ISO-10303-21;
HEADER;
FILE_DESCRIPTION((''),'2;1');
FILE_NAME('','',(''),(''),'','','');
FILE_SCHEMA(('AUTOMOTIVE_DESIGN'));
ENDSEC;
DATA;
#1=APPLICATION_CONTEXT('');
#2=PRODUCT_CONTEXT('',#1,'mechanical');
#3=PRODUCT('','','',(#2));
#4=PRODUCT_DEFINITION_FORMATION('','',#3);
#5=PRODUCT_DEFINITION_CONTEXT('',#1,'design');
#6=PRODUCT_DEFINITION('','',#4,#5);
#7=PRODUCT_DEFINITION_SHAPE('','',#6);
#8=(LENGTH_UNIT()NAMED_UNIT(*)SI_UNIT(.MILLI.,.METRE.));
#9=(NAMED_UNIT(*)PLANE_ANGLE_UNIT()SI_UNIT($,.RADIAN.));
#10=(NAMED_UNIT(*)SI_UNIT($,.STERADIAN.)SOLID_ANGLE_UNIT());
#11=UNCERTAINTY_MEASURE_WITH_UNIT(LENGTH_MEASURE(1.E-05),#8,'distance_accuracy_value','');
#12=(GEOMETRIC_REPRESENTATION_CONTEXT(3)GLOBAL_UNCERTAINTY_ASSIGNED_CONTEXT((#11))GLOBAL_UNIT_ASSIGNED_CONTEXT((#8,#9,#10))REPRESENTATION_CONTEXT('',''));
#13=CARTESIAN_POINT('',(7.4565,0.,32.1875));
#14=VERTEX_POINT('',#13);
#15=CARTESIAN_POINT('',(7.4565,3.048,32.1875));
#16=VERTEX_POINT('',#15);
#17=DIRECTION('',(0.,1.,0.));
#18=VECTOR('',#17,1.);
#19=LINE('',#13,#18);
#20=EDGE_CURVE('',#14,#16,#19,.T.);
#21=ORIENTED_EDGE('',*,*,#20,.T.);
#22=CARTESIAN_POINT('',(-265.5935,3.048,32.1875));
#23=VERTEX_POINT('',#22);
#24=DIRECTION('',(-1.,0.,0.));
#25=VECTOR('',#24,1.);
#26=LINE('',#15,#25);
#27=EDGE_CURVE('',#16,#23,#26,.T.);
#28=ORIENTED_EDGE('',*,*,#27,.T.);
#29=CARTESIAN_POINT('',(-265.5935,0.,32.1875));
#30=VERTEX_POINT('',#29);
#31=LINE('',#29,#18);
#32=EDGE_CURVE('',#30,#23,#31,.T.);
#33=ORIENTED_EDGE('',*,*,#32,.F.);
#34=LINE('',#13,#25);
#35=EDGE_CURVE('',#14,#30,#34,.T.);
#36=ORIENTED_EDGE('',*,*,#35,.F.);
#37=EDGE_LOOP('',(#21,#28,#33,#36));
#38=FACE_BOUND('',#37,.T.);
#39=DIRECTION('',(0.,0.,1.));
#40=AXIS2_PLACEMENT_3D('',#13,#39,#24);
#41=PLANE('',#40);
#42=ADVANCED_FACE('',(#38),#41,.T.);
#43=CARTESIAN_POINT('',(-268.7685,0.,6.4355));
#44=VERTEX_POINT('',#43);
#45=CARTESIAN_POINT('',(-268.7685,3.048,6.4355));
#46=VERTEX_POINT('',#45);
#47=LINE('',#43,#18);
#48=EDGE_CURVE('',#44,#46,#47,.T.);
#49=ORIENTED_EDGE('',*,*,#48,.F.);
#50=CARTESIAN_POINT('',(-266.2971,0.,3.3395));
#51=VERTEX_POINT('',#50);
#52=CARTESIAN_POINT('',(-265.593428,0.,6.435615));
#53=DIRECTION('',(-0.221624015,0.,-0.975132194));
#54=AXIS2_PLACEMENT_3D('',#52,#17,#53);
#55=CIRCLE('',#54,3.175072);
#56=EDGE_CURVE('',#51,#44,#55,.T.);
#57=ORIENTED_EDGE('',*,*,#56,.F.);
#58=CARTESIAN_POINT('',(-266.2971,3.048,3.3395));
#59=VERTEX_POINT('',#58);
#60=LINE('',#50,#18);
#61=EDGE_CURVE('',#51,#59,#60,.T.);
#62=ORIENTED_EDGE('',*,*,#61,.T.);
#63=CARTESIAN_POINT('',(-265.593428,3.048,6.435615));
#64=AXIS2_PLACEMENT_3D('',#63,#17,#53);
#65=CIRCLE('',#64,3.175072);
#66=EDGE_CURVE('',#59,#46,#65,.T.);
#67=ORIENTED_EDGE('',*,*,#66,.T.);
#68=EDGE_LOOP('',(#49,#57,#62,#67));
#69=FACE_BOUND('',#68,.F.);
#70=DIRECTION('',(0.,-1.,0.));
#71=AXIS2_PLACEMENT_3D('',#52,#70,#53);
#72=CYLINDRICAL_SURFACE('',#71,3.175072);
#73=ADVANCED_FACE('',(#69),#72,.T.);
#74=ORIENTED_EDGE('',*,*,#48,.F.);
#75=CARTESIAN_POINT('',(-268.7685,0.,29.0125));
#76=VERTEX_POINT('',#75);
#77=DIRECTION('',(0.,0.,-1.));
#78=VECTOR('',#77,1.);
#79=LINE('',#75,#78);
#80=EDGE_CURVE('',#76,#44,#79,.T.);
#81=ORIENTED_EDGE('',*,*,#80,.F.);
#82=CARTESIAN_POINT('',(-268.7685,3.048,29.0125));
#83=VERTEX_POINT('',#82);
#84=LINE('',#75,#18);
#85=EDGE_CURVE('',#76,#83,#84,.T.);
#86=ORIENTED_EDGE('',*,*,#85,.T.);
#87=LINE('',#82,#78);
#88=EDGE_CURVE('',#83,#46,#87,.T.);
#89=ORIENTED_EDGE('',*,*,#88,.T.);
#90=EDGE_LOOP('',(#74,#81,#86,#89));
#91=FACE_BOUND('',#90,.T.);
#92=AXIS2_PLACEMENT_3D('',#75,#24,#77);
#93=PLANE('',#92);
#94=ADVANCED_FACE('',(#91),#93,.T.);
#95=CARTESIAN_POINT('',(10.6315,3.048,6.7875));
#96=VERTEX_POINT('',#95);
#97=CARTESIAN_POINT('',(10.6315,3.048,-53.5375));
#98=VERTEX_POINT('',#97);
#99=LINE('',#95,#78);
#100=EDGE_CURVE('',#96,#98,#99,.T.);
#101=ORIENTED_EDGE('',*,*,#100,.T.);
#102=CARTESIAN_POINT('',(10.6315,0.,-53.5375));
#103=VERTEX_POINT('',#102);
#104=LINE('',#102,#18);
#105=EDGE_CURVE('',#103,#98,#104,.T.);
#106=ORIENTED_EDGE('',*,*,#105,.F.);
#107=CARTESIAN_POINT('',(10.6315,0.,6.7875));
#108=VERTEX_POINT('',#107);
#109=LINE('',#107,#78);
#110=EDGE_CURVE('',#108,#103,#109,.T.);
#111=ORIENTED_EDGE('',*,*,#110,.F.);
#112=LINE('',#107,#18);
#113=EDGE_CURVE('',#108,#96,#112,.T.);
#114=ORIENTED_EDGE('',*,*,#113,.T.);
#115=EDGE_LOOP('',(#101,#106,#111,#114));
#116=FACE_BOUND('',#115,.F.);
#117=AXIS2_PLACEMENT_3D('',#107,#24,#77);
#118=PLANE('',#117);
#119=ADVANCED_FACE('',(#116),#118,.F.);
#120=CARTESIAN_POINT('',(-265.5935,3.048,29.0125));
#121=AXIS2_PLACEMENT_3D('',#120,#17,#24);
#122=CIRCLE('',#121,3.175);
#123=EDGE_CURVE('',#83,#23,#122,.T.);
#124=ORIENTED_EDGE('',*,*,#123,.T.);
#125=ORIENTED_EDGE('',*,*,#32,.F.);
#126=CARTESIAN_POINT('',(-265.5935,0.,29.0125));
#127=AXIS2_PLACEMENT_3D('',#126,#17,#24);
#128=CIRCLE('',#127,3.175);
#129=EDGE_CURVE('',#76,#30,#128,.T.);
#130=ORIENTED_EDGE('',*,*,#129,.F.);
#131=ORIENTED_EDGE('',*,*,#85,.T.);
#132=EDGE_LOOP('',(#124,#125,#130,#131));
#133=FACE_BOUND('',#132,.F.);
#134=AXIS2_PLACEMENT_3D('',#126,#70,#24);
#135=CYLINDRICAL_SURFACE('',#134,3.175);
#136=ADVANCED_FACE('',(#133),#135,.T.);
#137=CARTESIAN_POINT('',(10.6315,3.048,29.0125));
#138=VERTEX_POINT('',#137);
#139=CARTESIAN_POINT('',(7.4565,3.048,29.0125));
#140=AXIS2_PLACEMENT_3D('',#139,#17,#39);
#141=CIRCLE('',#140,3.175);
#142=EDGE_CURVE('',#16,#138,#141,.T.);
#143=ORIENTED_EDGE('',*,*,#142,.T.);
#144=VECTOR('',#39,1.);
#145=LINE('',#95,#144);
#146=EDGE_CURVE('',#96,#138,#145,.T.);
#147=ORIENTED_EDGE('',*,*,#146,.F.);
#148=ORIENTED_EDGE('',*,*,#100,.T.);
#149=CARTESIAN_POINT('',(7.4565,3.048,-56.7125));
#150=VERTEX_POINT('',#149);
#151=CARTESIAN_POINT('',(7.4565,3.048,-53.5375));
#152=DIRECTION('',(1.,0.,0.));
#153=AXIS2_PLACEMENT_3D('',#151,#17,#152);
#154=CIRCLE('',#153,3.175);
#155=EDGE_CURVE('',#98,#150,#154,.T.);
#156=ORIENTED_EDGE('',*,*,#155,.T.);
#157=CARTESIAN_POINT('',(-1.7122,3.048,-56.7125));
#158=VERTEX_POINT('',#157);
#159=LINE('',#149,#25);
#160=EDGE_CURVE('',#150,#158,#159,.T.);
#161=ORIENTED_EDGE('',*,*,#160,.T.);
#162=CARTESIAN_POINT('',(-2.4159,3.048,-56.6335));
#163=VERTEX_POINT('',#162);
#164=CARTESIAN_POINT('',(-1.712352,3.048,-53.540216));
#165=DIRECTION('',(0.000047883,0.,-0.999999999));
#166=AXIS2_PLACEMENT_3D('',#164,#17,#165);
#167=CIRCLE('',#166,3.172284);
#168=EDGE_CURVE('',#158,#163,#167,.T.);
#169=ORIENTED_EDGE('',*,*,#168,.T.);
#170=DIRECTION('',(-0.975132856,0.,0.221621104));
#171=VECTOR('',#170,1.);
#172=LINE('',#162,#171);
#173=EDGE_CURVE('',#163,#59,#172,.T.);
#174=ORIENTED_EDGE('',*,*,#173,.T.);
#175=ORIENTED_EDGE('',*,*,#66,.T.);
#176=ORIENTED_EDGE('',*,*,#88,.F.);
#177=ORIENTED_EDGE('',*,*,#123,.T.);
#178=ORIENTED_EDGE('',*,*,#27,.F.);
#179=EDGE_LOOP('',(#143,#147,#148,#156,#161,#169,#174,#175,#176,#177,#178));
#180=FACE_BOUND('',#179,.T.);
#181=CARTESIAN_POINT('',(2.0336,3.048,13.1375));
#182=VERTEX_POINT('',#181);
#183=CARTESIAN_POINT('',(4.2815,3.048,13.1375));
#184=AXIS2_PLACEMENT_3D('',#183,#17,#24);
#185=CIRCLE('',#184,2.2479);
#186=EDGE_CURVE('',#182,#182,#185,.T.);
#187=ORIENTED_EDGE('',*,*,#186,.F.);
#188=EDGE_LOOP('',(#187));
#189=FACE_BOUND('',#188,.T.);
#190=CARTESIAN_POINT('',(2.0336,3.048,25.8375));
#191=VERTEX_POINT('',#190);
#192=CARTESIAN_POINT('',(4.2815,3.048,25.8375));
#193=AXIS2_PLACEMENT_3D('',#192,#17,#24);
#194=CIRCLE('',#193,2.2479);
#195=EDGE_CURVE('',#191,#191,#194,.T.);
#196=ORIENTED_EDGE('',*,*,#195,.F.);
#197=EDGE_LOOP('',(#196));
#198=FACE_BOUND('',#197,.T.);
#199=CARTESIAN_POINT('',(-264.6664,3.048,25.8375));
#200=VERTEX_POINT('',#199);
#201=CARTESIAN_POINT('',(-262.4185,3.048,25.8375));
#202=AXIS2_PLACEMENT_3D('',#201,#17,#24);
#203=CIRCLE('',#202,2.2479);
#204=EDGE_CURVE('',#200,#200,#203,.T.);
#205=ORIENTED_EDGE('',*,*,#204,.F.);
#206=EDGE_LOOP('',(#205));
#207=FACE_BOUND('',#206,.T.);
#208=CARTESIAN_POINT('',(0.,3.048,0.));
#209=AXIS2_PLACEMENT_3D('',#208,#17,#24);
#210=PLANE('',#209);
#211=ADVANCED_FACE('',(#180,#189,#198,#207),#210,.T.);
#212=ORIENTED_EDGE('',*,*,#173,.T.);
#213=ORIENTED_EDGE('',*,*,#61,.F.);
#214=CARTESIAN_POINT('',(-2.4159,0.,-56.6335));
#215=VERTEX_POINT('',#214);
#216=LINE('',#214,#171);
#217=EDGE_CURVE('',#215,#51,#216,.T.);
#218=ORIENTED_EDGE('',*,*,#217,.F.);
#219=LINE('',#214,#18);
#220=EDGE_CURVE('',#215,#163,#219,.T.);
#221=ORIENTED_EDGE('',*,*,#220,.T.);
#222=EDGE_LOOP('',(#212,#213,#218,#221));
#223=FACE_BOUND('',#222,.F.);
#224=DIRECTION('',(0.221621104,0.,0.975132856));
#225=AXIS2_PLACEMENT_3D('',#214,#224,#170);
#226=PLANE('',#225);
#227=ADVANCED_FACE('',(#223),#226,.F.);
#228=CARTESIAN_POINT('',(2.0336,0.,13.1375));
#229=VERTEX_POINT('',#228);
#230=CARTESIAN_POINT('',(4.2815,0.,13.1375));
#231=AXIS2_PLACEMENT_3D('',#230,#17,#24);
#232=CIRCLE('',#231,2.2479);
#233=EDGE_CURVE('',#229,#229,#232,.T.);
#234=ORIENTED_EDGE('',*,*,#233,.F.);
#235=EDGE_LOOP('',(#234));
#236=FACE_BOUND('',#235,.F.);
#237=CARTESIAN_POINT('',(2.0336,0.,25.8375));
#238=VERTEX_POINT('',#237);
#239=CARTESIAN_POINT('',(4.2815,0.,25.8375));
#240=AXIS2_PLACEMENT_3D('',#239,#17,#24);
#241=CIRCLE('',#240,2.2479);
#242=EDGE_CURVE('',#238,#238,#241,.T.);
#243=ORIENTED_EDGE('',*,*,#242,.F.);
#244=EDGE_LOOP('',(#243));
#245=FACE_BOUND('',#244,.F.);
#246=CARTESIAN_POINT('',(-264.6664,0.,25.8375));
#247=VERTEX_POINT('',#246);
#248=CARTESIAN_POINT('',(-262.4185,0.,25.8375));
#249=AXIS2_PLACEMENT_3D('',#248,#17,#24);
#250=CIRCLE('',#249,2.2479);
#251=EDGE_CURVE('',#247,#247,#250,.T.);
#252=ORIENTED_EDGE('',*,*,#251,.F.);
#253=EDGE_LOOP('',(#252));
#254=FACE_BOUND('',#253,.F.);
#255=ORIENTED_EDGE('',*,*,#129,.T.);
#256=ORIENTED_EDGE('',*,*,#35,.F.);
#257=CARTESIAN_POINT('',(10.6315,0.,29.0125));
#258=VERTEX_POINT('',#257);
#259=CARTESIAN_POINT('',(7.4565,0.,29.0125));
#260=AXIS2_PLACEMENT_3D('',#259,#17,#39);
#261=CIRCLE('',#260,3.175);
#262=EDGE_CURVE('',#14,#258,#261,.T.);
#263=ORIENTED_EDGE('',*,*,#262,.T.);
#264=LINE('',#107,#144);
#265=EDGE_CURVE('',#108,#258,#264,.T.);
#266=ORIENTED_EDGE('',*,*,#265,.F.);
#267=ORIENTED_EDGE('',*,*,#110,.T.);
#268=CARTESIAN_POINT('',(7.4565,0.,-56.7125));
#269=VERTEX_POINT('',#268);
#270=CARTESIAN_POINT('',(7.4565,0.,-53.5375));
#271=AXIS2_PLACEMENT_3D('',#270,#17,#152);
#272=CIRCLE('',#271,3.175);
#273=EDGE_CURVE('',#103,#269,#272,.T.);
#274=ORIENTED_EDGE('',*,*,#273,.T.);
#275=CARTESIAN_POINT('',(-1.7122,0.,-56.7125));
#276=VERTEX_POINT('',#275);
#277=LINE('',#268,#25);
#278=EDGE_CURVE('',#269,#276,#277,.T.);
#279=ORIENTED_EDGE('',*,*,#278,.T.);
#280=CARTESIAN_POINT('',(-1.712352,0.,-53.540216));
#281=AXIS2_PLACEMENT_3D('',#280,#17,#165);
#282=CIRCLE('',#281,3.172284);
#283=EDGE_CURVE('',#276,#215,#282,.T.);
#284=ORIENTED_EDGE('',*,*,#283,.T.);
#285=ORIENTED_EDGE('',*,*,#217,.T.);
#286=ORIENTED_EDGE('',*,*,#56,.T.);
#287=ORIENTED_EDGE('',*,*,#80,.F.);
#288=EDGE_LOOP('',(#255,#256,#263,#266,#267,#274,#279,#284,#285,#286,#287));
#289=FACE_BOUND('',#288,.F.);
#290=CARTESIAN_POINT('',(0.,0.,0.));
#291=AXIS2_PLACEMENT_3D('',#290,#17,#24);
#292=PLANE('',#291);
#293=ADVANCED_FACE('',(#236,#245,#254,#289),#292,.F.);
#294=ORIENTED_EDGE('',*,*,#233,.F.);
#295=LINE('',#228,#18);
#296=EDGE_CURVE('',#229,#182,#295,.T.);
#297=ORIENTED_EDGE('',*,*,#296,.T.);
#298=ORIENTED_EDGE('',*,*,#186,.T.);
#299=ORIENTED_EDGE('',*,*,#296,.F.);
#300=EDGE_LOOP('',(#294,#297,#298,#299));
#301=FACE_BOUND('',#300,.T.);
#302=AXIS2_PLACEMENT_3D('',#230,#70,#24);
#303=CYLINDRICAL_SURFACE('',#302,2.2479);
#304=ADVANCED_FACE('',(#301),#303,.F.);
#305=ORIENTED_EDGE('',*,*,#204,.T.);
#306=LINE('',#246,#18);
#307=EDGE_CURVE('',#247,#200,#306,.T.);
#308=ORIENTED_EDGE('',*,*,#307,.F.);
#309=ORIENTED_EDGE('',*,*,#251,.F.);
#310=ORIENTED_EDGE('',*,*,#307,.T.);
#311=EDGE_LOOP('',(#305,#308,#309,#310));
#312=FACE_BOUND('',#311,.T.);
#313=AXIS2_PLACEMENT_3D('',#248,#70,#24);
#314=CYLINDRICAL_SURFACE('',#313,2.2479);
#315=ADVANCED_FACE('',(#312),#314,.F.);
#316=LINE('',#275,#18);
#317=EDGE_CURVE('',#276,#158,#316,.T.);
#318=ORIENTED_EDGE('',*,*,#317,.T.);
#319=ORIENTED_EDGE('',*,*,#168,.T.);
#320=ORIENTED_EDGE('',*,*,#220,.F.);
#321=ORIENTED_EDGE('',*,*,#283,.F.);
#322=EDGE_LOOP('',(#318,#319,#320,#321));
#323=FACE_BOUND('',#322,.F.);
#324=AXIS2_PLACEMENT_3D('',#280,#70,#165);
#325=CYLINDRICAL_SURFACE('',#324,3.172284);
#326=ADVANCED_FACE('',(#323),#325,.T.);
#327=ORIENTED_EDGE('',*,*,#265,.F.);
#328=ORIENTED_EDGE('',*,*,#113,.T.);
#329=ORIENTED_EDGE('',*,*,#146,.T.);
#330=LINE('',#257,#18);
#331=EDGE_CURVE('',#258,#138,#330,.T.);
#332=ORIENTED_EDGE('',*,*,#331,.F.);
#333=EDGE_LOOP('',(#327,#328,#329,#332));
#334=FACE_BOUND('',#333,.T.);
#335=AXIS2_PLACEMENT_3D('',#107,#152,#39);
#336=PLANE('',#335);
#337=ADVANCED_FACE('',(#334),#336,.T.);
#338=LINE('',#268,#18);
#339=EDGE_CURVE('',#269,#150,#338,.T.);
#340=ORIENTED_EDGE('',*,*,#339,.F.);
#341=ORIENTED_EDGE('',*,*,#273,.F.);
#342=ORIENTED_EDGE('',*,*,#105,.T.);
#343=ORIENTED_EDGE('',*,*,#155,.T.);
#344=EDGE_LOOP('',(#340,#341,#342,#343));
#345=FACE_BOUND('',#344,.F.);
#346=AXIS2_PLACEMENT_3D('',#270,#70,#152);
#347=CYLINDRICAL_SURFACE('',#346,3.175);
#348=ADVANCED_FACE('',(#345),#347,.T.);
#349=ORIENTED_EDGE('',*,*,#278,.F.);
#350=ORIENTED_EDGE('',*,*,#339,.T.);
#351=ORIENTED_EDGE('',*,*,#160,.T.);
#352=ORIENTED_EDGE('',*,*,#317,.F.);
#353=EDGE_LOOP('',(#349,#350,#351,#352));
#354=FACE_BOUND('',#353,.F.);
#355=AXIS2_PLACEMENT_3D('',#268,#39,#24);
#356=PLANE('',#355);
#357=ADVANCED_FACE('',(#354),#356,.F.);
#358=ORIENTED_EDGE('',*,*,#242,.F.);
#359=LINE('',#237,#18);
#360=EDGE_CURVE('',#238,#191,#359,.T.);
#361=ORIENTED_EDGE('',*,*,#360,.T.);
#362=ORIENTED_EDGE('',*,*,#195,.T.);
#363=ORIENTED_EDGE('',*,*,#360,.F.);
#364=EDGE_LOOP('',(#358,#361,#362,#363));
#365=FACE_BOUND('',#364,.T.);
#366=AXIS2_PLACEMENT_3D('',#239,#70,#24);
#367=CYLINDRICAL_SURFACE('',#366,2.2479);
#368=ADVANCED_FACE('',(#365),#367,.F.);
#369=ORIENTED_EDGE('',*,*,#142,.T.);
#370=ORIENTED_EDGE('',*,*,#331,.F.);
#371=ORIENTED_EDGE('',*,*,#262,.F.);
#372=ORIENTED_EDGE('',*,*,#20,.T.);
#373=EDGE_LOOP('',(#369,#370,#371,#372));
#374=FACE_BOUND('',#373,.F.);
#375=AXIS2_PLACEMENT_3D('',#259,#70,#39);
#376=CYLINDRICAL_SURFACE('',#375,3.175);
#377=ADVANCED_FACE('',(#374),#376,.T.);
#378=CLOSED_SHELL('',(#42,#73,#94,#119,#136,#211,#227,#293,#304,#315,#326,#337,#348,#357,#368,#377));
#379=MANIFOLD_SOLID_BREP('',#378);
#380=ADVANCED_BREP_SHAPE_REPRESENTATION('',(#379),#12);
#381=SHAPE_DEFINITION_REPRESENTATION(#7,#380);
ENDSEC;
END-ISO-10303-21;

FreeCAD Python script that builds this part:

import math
import FreeCAD as App
import Part
import Sketcher

V = App.Vector
Q = App.Units.Quantity

doc = App.newDocument("Part")
body = doc.addObject("PartDesign::Body", "Body")

# Sketch on XZ plane
sketch1 = body.newObject("Sketcher::SketchObject", "Sketch")
sketch1.AttachmentSupport = (doc.getObject("XZ_Plane"), [""])
sketch1.MapMode = "FlatFace"
sketch1.addGeometry(Part.LineSegment(V(-265.5935, 32.1875, 0), V(7.4565, 32.1875, 0)), False)
sketch1.addGeometry(Part.ArcOfCircle(Part.Circle(V(7.4565, 29.0125, 0), V(0, 0, 1), 3.175), math.radians(0), math.radians(90)), False)
sketch1.addGeometry(Part.LineSegment(V(10.6315, 29.0125, 0), V(10.6315, -53.5375, 0)), False)
sketch1.addGeometry(Part.ArcOfCircle(Part.Circle(V(7.4565, -53.5375, 0), V(0, 0, 1), 3.175), math.radians(-90), math.radians(0)), False)
sketch1.addGeometry(Part.LineSegment(V(7.4565, -56.7125, 0), V(-1.7122, -56.7125, 0)), False)
sketch1.addGeometry(Part.ArcOfCircle(Part.Circle(V(-1.712352, -53.540216, 0), V(0, 0, 1), 3.172284), math.radians(-102.813582), math.radians(-89.997256)), False)
sketch1.addGeometry(Part.LineSegment(V(-2.4159, -56.6335, 0), V(-266.2971, 3.3395, 0)), False)
sketch1.addGeometry(Part.ArcOfCircle(Part.Circle(V(-265.5935, 6.4355, 0), V(0, 0, 1), 3.174944), math.radians(180), math.radians(257.196374)), False)
sketch1.addGeometry(Part.LineSegment(V(-268.7685, 6.4355, 0), V(-268.7685, 29.0125, 0)), False)
sketch1.addGeometry(Part.ArcOfCircle(Part.Circle(V(-265.5935, 29.0125, 0), V(0, 0, 1), 3.175), math.radians(90), math.radians(180)), False)
sketch1.addGeometry(Part.Circle(V(4.2815, 13.1375, 0), V(0, 0, 1), 2.2479), False)
sketch1.addGeometry(Part.Circle(V(4.2815, 25.8375, 0), V(0, 0, 1), 2.2479), False)
sketch1.addGeometry(Part.Circle(V(-262.4185, 25.8375, 0), V(0, 0, 1), 2.2479), False)
sketch1.addConstraint(Sketcher.Constraint("Tangent", 0, 2, 1, 2))
sketch1.addConstraint(Sketcher.Constraint("Tangent", 1, 1, 2, 1))
sketch1.addConstraint(Sketcher.Constraint("Tangent", 2, 2, 3, 2))
sketch1.addConstraint(Sketcher.Constraint("Tangent", 3, 1, 4, 1))
sketch1.addConstraint(Sketcher.Constraint("Tangent", 4, 2, 5, 2))
sketch1.addConstraint(Sketcher.Constraint("Tangent", 5, 1, 6, 1))
sketch1.addConstraint(Sketcher.Constraint("Tangent", 6, 2, 7, 2))
sketch1.addConstraint(Sketcher.Constraint("Tangent", 7, 1, 8, 1))
sketch1.addConstraint(Sketcher.Constraint("Tangent", 8, 2, 9, 2))
sketch1.addConstraint(Sketcher.Constraint("Tangent", 9, 1, 0, 1))
sketch1.addConstraint(Sketcher.Constraint("Horizontal", 0))
sketch1.addConstraint(Sketcher.Constraint("Vertical", 2))
sketch1.addConstraint(Sketcher.Constraint("Horizontal", 4))
sketch1.addConstraint(Sketcher.Constraint("Vertical", 8))
sketch1.addConstraint(Sketcher.Constraint("Equal", 1, 3))
sketch1.addConstraint(Sketcher.Constraint("Equal", 3, 7))
sketch1.addConstraint(Sketcher.Constraint("Equal", 7, 9))
sketch1.addConstraint(Sketcher.Constraint("Equal", 10, 11))
sketch1.addConstraint(Sketcher.Constraint("Equal", 11, 12))
sketch1.addConstraint(Sketcher.Constraint("Horizontal", 11, 3, 12, 3))
sketch1.addConstraint(Sketcher.Constraint("Vertical", 10, 3, 11, 3))
sketch1.addConstraint(Sketcher.Constraint("Diameter", 10, Q("0.177 in")))
sketch1.addConstraint(Sketcher.Constraint("Radius", 1, Q("0.125 in")))
sketch1.addConstraint(Sketcher.Constraint("DistanceY", 10, 3, 11, 3, Q("0.5 in")))
sketch1.addConstraint(Sketcher.Constraint("DistanceX", 12, 3, 11, 3, Q("10.5 in")))
sketch1.addConstraint(Sketcher.Constraint("DistanceY", 11, 3, 0, 2, Q("0.25 in")))
sketch1.addConstraint(Sketcher.Constraint("DistanceX", 11, 3, 1, 1, Q("0.25 in")))
sketch1.addConstraint(Sketcher.Constraint("DistanceX", 7, 1, 12, 3, Q("0.25 in")))
sketch1.addConstraint(Sketcher.Constraint("DistanceY", 2, 2, 2, 1, Q("3.25 in")))
sketch1.addConstraint(Sketcher.Constraint("Radius", 5, Q("0.1249 in")))
sketch1.addConstraint(Sketcher.Constraint("DistanceX", 4, 2, 4, 1, Q("9.1687 mm")))
sketch1.addConstraint(Sketcher.Constraint("DistanceY", 8, 1, 8, 2, Q("22.577 mm")))
sketch1.addConstraint(Sketcher.Constraint("DistanceX", 4, 2, -1, 1, Q("0.0674 in")))
sketch1.addConstraint(Sketcher.Constraint("DistanceY", -1, 1, 1, 3, Q("29.0125 mm")))
pad1 = body.newObject("PartDesign::Pad", "Pad")
pad1.Profile = sketch1
pad1.Length = Q("0.12 in")
pad1.Reversed = True

doc.recompute()
